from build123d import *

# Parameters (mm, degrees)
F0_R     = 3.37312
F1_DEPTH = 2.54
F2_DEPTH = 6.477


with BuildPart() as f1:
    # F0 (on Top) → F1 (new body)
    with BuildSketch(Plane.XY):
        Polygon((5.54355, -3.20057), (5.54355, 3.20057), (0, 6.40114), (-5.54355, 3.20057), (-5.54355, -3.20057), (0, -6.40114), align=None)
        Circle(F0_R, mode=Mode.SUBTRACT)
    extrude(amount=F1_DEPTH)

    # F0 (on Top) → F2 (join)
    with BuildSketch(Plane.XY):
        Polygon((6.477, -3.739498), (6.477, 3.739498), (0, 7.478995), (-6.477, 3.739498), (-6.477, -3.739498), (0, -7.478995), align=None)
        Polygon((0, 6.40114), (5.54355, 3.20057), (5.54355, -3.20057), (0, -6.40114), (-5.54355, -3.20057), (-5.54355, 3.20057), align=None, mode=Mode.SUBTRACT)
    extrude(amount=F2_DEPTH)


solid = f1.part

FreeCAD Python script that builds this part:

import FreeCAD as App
import Part
import Sketcher

V = App.Vector
Q = App.Units.Quantity


def add_polygon(sketch, points):
    """Adds a closed chain of lines whose ends are joined by coincident constraints."""
    first, n = sketch.GeometryCount, len(points)
    for a, b in zip(points, points[1:] + points[:1]):
        sketch.addGeometry(Part.LineSegment(App.Vector(*a, 0), App.Vector(*b, 0)), False)
    for i in range(n):
        sketch.addConstraint(Sketcher.Constraint("Coincident", first + i, 2, first + (i + 1) % n, 1))

doc = App.newDocument("Part")
params = doc.addObject("Spreadsheet::Sheet", "Params")
for row, (alias, value) in enumerate([
    ("pad1_length", "0.1 in"),
    ("pad2_length", "0.255 in"),
], start=1):
    params.set(f"A{row}", alias)
    params.set(f"B{row}", "=" + value)
    params.setAlias(f"B{row}", alias)

body = doc.addObject("PartDesign::Body", "Body")

# Sketch on XY plane
sketch1 = doc.addObject("Sketcher::SketchObject", "Sketch")
body.addObject(sketch1)
sketch1.AttachmentSupport = (doc.XY_Plane, [""])
sketch1.MapMode = "FlatFace"
add_polygon(sketch1, [(5.54355, -3.20057), (5.54355, 3.20057), (0, 6.40114), (-5.54355, 3.20057), (-5.54355, -3.20057), (0, -6.40114)])  # lines 0-5
sketch1.addGeometry(Part.Circle(V(0, 0, 0), V(0, 0, 1), 3.37312), False)  # 6
sketch1.addConstraint(Sketcher.Constraint("Vertical", 0))
sketch1.addConstraint(Sketcher.Constraint("Vertical", 3))
sketch1.addConstraint(Sketcher.Constraint("Coincident", 6, 3, -1, 1))
sketch1.addConstraint(Sketcher.Constraint("Symmetric", 0, 2, 3, 2, -1, 1))
sketch1.addConstraint(Sketcher.Constraint("Symmetric", 1, 2, 4, 2, -1, 1))
sketch1.addConstraint(Sketcher.Constraint("PointOnObject", 1, 2, -2))
sketch1.addConstraint(Sketcher.Constraint("Parallel", 2, 5))
sketch1.addConstraint(Sketcher.Constraint("Horizontal", 0, 2, 2, 2))
sketch1.addConstraint(Sketcher.Constraint("Angle", 1, Q("150.000001 deg")))
sketch1.addConstraint(Sketcher.Constraint("Diameter", 6, Q("0.2656 in")))
sketch1.addConstraint(Sketcher.Constraint("DistanceX", 2, 2, 0, 2, Q("0.4365 in")))
sketch1.addConstraint(Sketcher.Constraint("DistanceY", 0, 1, 0, 2, Q("6.40114 mm")))
pad1 = doc.addObject("PartDesign::Pad", "Pad")
body.addObject(pad1)
pad1.Profile = sketch1
pad1.setExpression("Length", "Params.pad1_length")

# Sketch on XY plane
sketch2 = doc.addObject("Sketcher::SketchObject", "Sketch001")
body.addObject(sketch2)
sketch2.AttachmentSupport = (doc.XY_Plane, [""])
sketch2.MapMode = "FlatFace"
add_polygon(sketch2, [(6.477, -3.739498), (6.477, 3.739498), (0, 7.478995), (-6.477, 3.739498), (-6.477, -3.739498), (0, -7.478995)])  # lines 0-5
add_polygon(sketch2, [(-5.54355, 3.20057), (0, 6.40114), (5.54355, 3.20057), (5.54355, -3.20057), (0, -6.40114), (-5.54355, -3.20057)])  # lines 6-11
sketch2.addConstraint(Sketcher.Constraint("Vertical", 0))
sketch2.addConstraint(Sketcher.Constraint("Vertical", 3))
sketch2.addConstraint(Sketcher.Constraint("Vertical", 8))
sketch2.addConstraint(Sketcher.Constraint("Vertical", 11))
sketch2.addConstraint(Sketcher.Constraint("Symmetric", 0, 2, 3, 2, -1, 1))
sketch2.addConstraint(Sketcher.Constraint("Symmetric", 1, 2, 4, 2, -1, 1))
sketch2.addConstraint(Sketcher.Constraint("Symmetric", 6, 2, 9, 2, -1, 1))
sketch2.addConstraint(Sketcher.Constraint("Symmetric", 7, 2, 10, 2, -1, 1))
sketch2.addConstraint(Sketcher.Constraint("PointOnObject", 1, 2, -2))
sketch2.addConstraint(Sketcher.Constraint("PointOnObject", 6, 2, -2))
sketch2.addConstraint(Sketcher.Constraint("Parallel", 2, 5))
sketch2.addConstraint(Sketcher.Constraint("Parallel", 5, 6))
sketch2.addConstraint(Sketcher.Constraint("Parallel", 4, 7))
sketch2.addConstraint(Sketcher.Constraint("Parallel", 6, 9))
sketch2.addConstraint(Sketcher.Constraint("Horizontal", 0, 2, 2, 2))
sketch2.addConstraint(Sketcher.Constraint("Angle", 1, Q("150.000005 deg")))
sketch2.addConstraint(Sketcher.Constraint("DistanceX", 2, 2, 0, 2, Q("0.51 in")))
sketch2.addConstraint(Sketcher.Constraint("DistanceY", 8, 2, 8, 1, Q("6.40114 mm")))
sketch2.addConstraint(Sketcher.Constraint("DistanceY", -1, 1, 0, 2, Q("3.739498 mm")))
sketch2.addConstraint(Sketcher.Constraint("Distance", 6, Q("6.40114 mm")))
pad2 = doc.addObject("PartDesign::Pad", "Pad001")
body.addObject(pad2)
pad2.Profile = sketch2
pad2.setExpression("Length", "Params.pad2_length")

doc.recompute()
